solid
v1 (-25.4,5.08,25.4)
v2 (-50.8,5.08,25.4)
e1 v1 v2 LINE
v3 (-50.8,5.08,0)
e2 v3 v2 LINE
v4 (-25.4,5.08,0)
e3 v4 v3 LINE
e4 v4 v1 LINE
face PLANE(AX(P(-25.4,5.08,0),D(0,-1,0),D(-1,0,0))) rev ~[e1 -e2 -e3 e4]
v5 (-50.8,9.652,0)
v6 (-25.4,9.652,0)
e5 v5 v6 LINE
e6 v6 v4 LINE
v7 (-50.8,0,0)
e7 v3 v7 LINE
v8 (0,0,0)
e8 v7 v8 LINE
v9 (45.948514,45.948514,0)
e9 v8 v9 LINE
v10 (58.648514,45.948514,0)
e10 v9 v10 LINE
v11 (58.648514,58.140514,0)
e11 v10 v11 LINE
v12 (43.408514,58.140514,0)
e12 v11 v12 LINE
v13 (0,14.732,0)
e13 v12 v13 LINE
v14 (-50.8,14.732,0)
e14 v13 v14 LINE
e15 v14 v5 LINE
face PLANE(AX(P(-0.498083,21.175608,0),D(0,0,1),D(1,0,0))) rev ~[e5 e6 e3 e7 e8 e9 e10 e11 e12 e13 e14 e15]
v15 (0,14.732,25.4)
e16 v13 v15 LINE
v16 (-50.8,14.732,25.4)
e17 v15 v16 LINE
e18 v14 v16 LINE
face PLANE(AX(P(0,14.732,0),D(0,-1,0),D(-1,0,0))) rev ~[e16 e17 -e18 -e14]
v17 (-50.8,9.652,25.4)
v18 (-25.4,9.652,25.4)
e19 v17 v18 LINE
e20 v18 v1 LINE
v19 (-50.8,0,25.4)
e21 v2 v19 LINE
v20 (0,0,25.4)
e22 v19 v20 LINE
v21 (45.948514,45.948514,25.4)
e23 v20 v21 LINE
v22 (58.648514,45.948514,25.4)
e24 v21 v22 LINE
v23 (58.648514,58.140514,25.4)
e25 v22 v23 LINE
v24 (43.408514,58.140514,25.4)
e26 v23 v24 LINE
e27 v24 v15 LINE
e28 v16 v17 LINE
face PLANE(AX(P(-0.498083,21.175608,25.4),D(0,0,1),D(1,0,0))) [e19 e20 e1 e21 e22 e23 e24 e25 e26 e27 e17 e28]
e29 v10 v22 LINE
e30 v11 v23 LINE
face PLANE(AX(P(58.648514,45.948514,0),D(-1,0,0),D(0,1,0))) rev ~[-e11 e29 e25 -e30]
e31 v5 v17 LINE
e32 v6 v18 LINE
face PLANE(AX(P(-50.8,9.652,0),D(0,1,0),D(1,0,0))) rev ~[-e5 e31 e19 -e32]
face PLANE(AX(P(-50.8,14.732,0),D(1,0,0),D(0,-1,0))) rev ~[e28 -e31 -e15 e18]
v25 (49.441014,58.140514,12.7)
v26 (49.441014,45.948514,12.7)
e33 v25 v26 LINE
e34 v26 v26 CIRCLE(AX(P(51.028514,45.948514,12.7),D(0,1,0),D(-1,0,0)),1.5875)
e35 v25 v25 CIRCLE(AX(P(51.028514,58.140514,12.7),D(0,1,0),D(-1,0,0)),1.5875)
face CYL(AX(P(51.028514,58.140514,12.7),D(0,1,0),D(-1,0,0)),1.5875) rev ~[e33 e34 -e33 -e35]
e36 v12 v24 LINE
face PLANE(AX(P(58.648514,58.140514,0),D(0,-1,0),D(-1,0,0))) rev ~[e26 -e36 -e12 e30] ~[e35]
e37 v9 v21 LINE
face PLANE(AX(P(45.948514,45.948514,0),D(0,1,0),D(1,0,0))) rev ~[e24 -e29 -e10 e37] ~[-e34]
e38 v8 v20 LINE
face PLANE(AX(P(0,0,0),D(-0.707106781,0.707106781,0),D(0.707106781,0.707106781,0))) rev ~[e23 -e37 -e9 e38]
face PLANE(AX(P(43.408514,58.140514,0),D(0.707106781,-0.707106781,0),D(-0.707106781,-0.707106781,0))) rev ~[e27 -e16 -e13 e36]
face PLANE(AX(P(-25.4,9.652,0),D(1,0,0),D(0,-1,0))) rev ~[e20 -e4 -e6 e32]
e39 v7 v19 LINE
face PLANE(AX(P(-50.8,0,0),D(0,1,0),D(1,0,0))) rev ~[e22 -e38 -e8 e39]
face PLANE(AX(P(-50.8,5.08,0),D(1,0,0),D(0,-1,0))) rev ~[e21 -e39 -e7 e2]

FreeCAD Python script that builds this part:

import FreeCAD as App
import Part
import Sketcher

V = App.Vector
Q = App.Units.Quantity


def add_polygon(sketch, points):
    """Adds a closed chain of lines whose ends are joined by coincident constraints."""
    first, n = sketch.GeometryCount, len(points)
    for a, b in zip(points, points[1:] + points[:1]):
        sketch.addGeometry(Part.LineSegment(App.Vector(*a, 0), App.Vector(*b, 0)), False)
    for i in range(n):
        sketch.addConstraint(Sketcher.Constraint("Coincident", first + i, 2, first + (i + 1) % n, 1))

doc = App.newDocument("Part")
params = doc.addObject("Spreadsheet::Sheet", "Params")
for row, (alias, value) in enumerate([
    ("sketch1_width", "2 in"),
    ("sketch1_width2", "1 in"),
    ("sketch1_width3", "0.5 in"),
    ("sketch1_width4", "0.6 in"),
    ("sketch1_height", "0.2 in"),
    ("pad1_length", "1 in"),
    ("sketch2_diameter", "0.125 in"),
    ("pocket1_length", "1 in"),
], start=1):
    params.set(f"A{row}", alias)
    params.set(f"B{row}", "=" + value)
    params.setAlias(f"B{row}", alias)

body = doc.addObject("PartDesign::Body", "Body")

sketch1 = body.newObject("Sketcher::SketchObject", "Sketch")
sketch1.AttachmentSupport = (doc.getObject("XY_Plane"), [""])
sketch1.MapMode = "FlatFace"
add_polygon(sketch1, [(-50.8, 0), (0, 0), (45.9, 45.9), (58.6, 45.9), (58.6, 58.1), (43.4, 58.1), (0, 14.7), (-50.8, 14.7), (-50.8, 9.7), (-25.4, 9.7), (-25.4, 5.1), (-50.8, 5.1)])
sketch1.addConstraint([
    Sketcher.Constraint("Horizontal", 0),
    Sketcher.Constraint("Horizontal", 2),
    Sketcher.Constraint("Vertical", 3),
    Sketcher.Constraint("Horizontal", 4),
    Sketcher.Constraint("Horizontal", 6),
    Sketcher.Constraint("Vertical", 7),
    Sketcher.Constraint("Horizontal", 8),
    Sketcher.Constraint("Vertical", 9),
    Sketcher.Constraint("Horizontal", 10),
    Sketcher.Constraint("Vertical", 11),
    Sketcher.Constraint("Coincident", 0, 2, -1, 1),
    Sketcher.Constraint("PointOnObject", 5, 2, -2),
    Sketcher.Constraint("Parallel", 1, 5),
    Sketcher.Constraint("Vertical", 7, 2, 10, 2),
    Sketcher.Constraint("Equal", 7, 11),
    Sketcher.Constraint("DistanceX", 0, 1, 0, 2, Q("2 in")),
    Sketcher.Constraint("DistanceX", 8, 1, 8, 2, Q("1 in")),
    Sketcher.Constraint("DistanceX", 2, 1, 2, 2, Q("0.5 in")),
    Sketcher.Constraint("DistanceX", 4, 2, 4, 1, Q("0.6 in")),
    Sketcher.Constraint("DistanceY", 7, 2, 7, 1, Q("0.2 in")),
    Sketcher.Constraint("Angle", 1, Q("45 deg")),
    Sketcher.Constraint("DistanceY", 3, 1, 3, 2, Q("0.48 in")),
    Sketcher.Constraint("Distance", 1, 64.981012),
])
sketch1.setExpression("Constraints[27]", "Params.sketch1_width")
sketch1.setExpression("Constraints[28]", "Params.sketch1_width2")
sketch1.setExpression("Constraints[29]", "Params.sketch1_width3")
sketch1.setExpression("Constraints[30]", "Params.sketch1_width4")
sketch1.setExpression("Constraints[31]", "Params.sketch1_height")
pad1 = body.newObject("PartDesign::Pad", "Pad")
pad1.Profile = sketch1
pad1.setExpression("Length", "Params.pad1_length")

sketch2 = body.newObject("Sketcher::SketchObject", "Sketch001")
sketch2.AttachmentSupport = (doc.getObject("XZ_Plane"), [""])
sketch2.MapMode = "FlatFace"
sketch2.AttachmentOffset = App.Placement(V(0, 0, -58.140514), App.Rotation())
sketch2.addGeometry(Part.Circle(V(51, 12.7, 0), V(0, 0, 1), 1.6), False)
sketch2.addConstraint([
    Sketcher.Constraint("Diameter", 0, Q("0.125 in")),
    Sketcher.Constraint("DistanceY", -1, 1, 0, 3, Q("0.5 in")),
    Sketcher.Constraint("DistanceX", -1, 1, 0, 3, 51.028514),
])
sketch2.setExpression("Constraints[0]", "Params.sketch2_diameter")
pocket1 = body.newObject("PartDesign::Pocket", "Pocket")
pocket1.Profile = sketch2
pocket1.setExpression("Length", "Params.pocket1_length")
pocket1.Reversed = True

doc.recompute()
